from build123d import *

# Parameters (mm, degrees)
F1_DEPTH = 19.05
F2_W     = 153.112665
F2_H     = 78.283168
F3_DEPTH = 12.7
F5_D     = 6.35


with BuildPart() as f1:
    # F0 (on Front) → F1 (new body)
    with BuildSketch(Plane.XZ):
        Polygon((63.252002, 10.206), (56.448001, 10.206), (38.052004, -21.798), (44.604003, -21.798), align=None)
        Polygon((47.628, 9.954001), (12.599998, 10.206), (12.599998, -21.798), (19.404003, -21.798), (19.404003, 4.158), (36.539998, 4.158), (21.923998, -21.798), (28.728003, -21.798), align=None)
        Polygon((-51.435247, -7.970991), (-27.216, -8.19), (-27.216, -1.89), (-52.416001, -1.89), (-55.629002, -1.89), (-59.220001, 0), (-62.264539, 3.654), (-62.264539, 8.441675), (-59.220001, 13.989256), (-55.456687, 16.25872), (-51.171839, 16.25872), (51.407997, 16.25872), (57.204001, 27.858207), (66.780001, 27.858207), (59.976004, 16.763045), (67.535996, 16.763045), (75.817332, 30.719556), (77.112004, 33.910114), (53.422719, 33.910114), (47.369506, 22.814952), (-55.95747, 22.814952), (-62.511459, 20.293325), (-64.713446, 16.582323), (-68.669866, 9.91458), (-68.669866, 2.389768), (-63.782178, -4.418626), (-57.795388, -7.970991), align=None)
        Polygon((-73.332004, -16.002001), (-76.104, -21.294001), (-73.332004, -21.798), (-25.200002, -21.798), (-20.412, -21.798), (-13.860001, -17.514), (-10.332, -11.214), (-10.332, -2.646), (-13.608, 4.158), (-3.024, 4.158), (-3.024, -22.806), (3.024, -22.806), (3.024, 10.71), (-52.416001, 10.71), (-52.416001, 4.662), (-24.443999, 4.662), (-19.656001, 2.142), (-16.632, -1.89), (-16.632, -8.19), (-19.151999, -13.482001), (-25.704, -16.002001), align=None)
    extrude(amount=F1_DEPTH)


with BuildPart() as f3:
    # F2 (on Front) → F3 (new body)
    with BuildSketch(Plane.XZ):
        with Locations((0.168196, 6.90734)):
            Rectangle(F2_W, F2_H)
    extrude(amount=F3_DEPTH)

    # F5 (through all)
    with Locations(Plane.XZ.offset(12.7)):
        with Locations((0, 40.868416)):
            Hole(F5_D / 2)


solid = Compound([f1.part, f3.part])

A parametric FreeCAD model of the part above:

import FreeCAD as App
import Part
import Sketcher

V = App.Vector
Q = App.Units.Quantity


def add_polygon(sketch, points):
    """Adds a closed chain of lines whose ends are joined by coincident constraints."""
    first, n = sketch.GeometryCount, len(points)
    for a, b in zip(points, points[1:] + points[:1]):
        sketch.addGeometry(Part.LineSegment(App.Vector(*a, 0), App.Vector(*b, 0)), False)
    for i in range(n):
        sketch.addConstraint(Sketcher.Constraint("Coincident", first + i, 2, first + (i + 1) % n, 1))

doc = App.newDocument("Part")
params = doc.addObject("Spreadsheet::Sheet", "Params")
for row, (alias, value) in enumerate([
    ("sketch1_height", "1.26 in"),
    ("pad1_length", "0.75 in"),
    ("pad2_length", "0.5 in"),
    ("sketch3_diameter", "0.25 in"),
    ("hole_diameter", "0.25 in"),
], start=1):
    params.set(f"A{row}", alias)
    params.set(f"B{row}", "=" + value)
    params.setAlias(f"B{row}", alias)

body = doc.addObject("PartDesign::Body", "Body")
body.AllowCompound = True

sketch1 = body.newObject("Sketcher::SketchObject", "Sketch")
sketch1.AttachmentSupport = (doc.getObject("XZ_Plane"), [""])
sketch1.MapMode = "FlatFace"
add_polygon(sketch1, [(63.252002, 10.206), (56.448001, 10.206), (38.052004, -21.798), (44.604003, -21.798)])
add_polygon(sketch1, [(47.628, 9.954001), (12.599998, 10.206), (12.599998, -21.798), (19.404003, -21.798), (19.404003, 4.158), (36.539998, 4.158), (21.923998, -21.798), (28.728003, -21.798)])
add_polygon(sketch1, [(-51.435247, -7.970991), (-27.216, -8.19), (-27.216, -1.89), (-55.629002, -1.89), (-59.220001, 0), (-62.264539, 3.654), (-62.264539, 8.441675), (-59.220001, 13.989256), (-55.456687, 16.25872), (51.407997, 16.25872), (57.204001, 27.858207), (66.780001, 27.858207), (59.976004, 16.763045), (67.535996, 16.763045), (75.817332, 30.719556), (77.112004, 33.910114), (53.422719, 33.910114), (47.369506, 22.814952), (-55.95747, 22.814952), (-62.511459, 20.293325), (-64.713446, 16.582323), (-68.669866, 9.91458), (-68.669866, 2.389768), (-63.782178, -4.418626), (-57.795388, -7.970991)])
add_polygon(sketch1, [(-73.332004, -16.002001), (-76.104, -21.294001), (-73.332004, -21.798), (-20.412, -21.798), (-13.860001, -17.514), (-10.332, -11.214), (-10.332, -2.646), (-13.608, 4.158), (-3.024, 4.158), (-3.024, -22.806), (3.024, -22.806), (3.024, 10.71), (-52.416001, 10.71), (-52.416001, 4.662), (-24.443999, 4.662), (-19.656001, 2.142), (-16.632, -1.89), (-16.632, -8.19), (-19.151999, -13.482001), (-25.704, -16.002001)])
sketch1.addConstraint([
    Sketcher.Constraint("Horizontal", 0),
    Sketcher.Constraint("Horizontal", 2),
    Sketcher.Constraint("Vertical", 5),
    Sketcher.Constraint("Horizontal", 6),
    Sketcher.Constraint("Vertical", 7),
    Sketcher.Constraint("Horizontal", 8),
    Sketcher.Constraint("Horizontal", 10),
    Sketcher.Constraint("Vertical", 13),
    Sketcher.Constraint("Horizontal", 14),
    Sketcher.Constraint("Vertical", 17),
    Sketcher.Constraint("Horizontal", 20),
    Sketcher.Constraint("Horizontal", 22),
    Sketcher.Constraint("Horizontal", 24),
    Sketcher.Constraint("Horizontal", 27),
    Sketcher.Constraint("Horizontal", 29),
    Sketcher.Constraint("Vertical", 33),
    Sketcher.Constraint("Horizontal", 36),
    Sketcher.Constraint("Horizontal", 39),
    Sketcher.Constraint("Vertical", 42),
    Sketcher.Constraint("Horizontal", 44),
    Sketcher.Constraint("Vertical", 45),
    Sketcher.Constraint("Horizontal", 46),
    Sketcher.Constraint("Vertical", 47),
    Sketcher.Constraint("Horizontal", 48),
    Sketcher.Constraint("Vertical", 49),
    Sketcher.Constraint("Horizontal", 50),
    Sketcher.Constraint("Vertical", 53),
    Sketcher.Constraint("Horizontal", 56),
    Sketcher.Constraint("PointOnObject", 15, 2, -1),
    Sketcher.Constraint("Parallel", 25, 31),
    Sketcher.Constraint("Parallel", 31, 32),
    Sketcher.Constraint("Perpendicular", 32, 35),
    Sketcher.Constraint("Parallel", 15, 51),
    Sketcher.Constraint("Horizontal", 3, 2, 4, 2),
    Sketcher.Constraint("Horizontal", 2, 2, 5, 2),
    Sketcher.Constraint("Horizontal", 6, 2, 9, 2),
    Sketcher.Constraint("Horizontal", 10, 2, 38, 2),
    Sketcher.Constraint("Horizontal", 8, 2, 43, 2),
    Sketcher.Constraint("Horizontal", 14, 2, 52, 2),
    Sketcher.Constraint("Horizontal", 12, 2, 53, 2),
    Sketcher.Constraint("Vertical", 15, 2, 18, 2),
    Sketcher.Constraint("Vertical", 38, 2, 56, 2),
    Sketcher.Constraint("Equal", 6, 10),
    Sketcher.Constraint("Equal", 46, 49),
    Sketcher.Constraint("DistanceY", 5, 2, 5, 1, Q("1.26 in")),
    Sketcher.Constraint("DistanceY", 55, 2, -1, 1, Q("0.63 in")),
    Sketcher.Constraint("DistanceX", 4, 2, 2, 2, Q("1.2600002 in")),
    Sketcher.Constraint("DistanceX", 15, 2, 13, 2, Q("1.26 in")),
    Sketcher.Constraint("DistanceX", 0, 2, 0, 1, 6.804001),
    Sketcher.Constraint("DistanceX", 2, 1, 2, 2, 6.551999),
    Sketcher.Constraint("DistanceX", 14, 2, 14, 1, 28.413002),
    Sketcher.Constraint("DistanceX", 22, 1, 22, 2, 9.576),
    Sketcher.Constraint("DistanceX", 44, 1, 44, 2, 10.584),
    Sketcher.Constraint("DistanceX", 46, 1, 46, 2, 6.048),
    Sketcher.Constraint("DistanceX", 48, 2, 48, 1, 55.440001),
    Sketcher.Constraint("DistanceX", 50, 1, 50, 2, 27.972002),
    Sketcher.Constraint("DistanceY", 7, 1, 7, 2, 25.956),
    Sketcher.Constraint("DistanceY", 13, 1, 13, 2, 6.3),
    Sketcher.Constraint("DistanceY", 42, 1, 42, 2, 8.568),
    Sketcher.Constraint("DistanceY", 45, 2, 45, 1, 26.964),
    Sketcher.Constraint("DistanceY", 47, 1, 47, 2, 33.516),
    Sketcher.Constraint("DistanceY", 16, 2, 18, 2, Q("0.4068998 in")),
    Sketcher.Constraint("Distance", 15, 4.058001),
    Sketcher.Constraint("Distance", 18, 6.328101),
    Sketcher.Constraint("Distance", 52, 5.040001),
    Sketcher.Constraint("DistanceX", 24, 1, 24, 2, 7.559992),
    Sketcher.Constraint("DistanceX", 36, 1, 36, 2, 6.360141),
    Sketcher.Constraint("DistanceX", -1, 1, 0, 2, 56.448001),
    Sketcher.Constraint("DistanceY", -1, 1, 0, 2, 10.206),
    Sketcher.Constraint("DistanceX", -1, 1, 9, 2, 21.923998),
    Sketcher.Constraint("DistanceX", -1, 1, 11, 2, 47.628),
    Sketcher.Constraint("DistanceY", -1, 1, 11, 2, 9.954001),
    Sketcher.Constraint("DistanceX", 12, 2, -1, 1, 27.216),
    Sketcher.Constraint("DistanceY", -1, 1, 16, 2, 3.654),
    Sketcher.Constraint("DistanceX", -1, 1, 21, 2, 57.204001),
    Sketcher.Constraint("DistanceX", 37, 2, -1, 1, 76.104),
    Sketcher.Constraint("DistanceY", 37, 2, -1, 1, 21.294001),
    Sketcher.Constraint("DistanceX", 39, 2, -1, 1, 20.412),
    Sketcher.Constraint("DistanceX", 40, 2, -1, 1, 13.860001),
    Sketcher.Constraint("DistanceY", 40, 2, -1, 1, 17.514),
    Sketcher.Constraint("DistanceX", 41, 2, -1, 1, 10.332),
    Sketcher.Constraint("DistanceY", 41, 2, -1, 1, 11.214),
    Sketcher.Constraint("DistanceX", 43, 2, -1, 1, 13.608),
    Sketcher.Constraint("DistanceX", 51, 2, -1, 1, 19.656001),
    Sketcher.Constraint("DistanceX", 54, 2, -1, 1, 19.151999),
    Sketcher.Constraint("DistanceY", 54, 2, -1, 1, 13.482001),
    Sketcher.Constraint("DistanceX", 55, 2, -1, 1, 25.704),
    Sketcher.Constraint("DistanceX", 2, 2, 3, 2, 18.647999),
    Sketcher.Constraint("DistanceX", 6, 2, 1, 2, 18.648001),
    Sketcher.Constraint("DistanceX", 4, 2, 8, 2, 23.94),
    Sketcher.Constraint("DistanceX", 8, 2, 20, 2, 14.867999),
    Sketcher.Constraint("DistanceX", 23, 2, 26, 2, 17.136),
    Sketcher.Constraint("DistanceX", 28, 2, 23, 2, 12.606498),
    Sketcher.Constraint("DistanceY", 34, 2, 17, 2, 12.860301),
    Sketcher.Constraint("Distance", 21, 12.966949),
    Sketcher.Constraint("Distance", 23, 13.01526),
    Sketcher.Constraint("Distance", 26, 3.44323),
    Sketcher.Constraint("Distance", 30, 7.022348),
    Sketcher.Constraint("Distance", 35, 6.96139),
    Sketcher.Constraint("Distance", 38, 2.817442),
    Sketcher.Constraint("DistanceX", 20, 1, 20, 2, 106.864684),
    Sketcher.Constraint("DistanceX", 27, 2, 27, 1, 23.689285),
    Sketcher.Constraint("DistanceX", 29, 2, 29, 1, 103.326976),
    Sketcher.Constraint("DistanceY", 17, 1, 17, 2, 4.787675),
    Sketcher.Constraint("DistanceY", 33, 2, 33, 1, 7.524812),
    Sketcher.Constraint("DistanceY", -1, 1, 19, 2, 16.25872),
    Sketcher.Constraint("DistanceX", -1, 1, 25, 2, 75.817332),
    Sketcher.Constraint("DistanceX", -1, 1, 27, 2, 53.422719),
    Sketcher.Constraint("DistanceX", 30, 2, -1, 1, 62.511459),
    Sketcher.Constraint("DistanceY", -1, 1, 32, 2, 9.91458),
    Sketcher.Constraint("DistanceX", 34, 2, -1, 1, 63.782178),
    Sketcher.Constraint("DistanceX", 35, 2, -1, 1, 57.795388),
    Sketcher.Constraint("DistanceY", 28, 2, 27, 2, 11.095162),
    Sketcher.Constraint("DistanceX", 31, 2, 19, 2, 9.256759),
])
sketch1.setExpression("Constraints[101]", "Params.sketch1_height")
pad1 = body.newObject("PartDesign::Pad", "Pad")
pad1.Profile = sketch1
pad1.setExpression("Length", "Params.pad1_length")
body2 = doc.addObject("PartDesign::Body", "Body001")

sketch2 = body2.newObject("Sketcher::SketchObject", "Sketch001")
sketch2.AttachmentSupport = (doc.getObject("XZ_Plane001"), [""])
sketch2.MapMode = "FlatFace"
add_polygon(sketch2, [(-76.388137, 46.048924), (-76.388137, -32.234244), (76.724529, -32.234244), (76.724529, 46.048924)])
sketch2.addConstraint([
    Sketcher.Constraint("Vertical", 0),
    Sketcher.Constraint("Horizontal", 1),
    Sketcher.Constraint("Vertical", 2),
    Sketcher.Constraint("Horizontal", 3),
    Sketcher.Constraint("DistanceX", 1, 1, 1, 2, 153.112665),
    Sketcher.Constraint("DistanceY", 0, 2, 0, 1, 78.283168),
    Sketcher.Constraint("DistanceX", -1, 1, 1, 2, 76.724529),
    Sketcher.Constraint("DistanceY", 0, 2, -1, 1, 32.234244),
])
pad2 = body2.newObject("PartDesign::Pad", "Pad001")
pad2.Profile = sketch2
pad2.setExpression("Length", "Params.pad2_length")

sketch3 = body2.newObject("Sketcher::SketchObject", "Sketch002")
sketch3.AttachmentSupport = (doc.getObject("XZ_Plane001"), [""])
sketch3.MapMode = "FlatFace"
sketch3.AttachmentOffset = App.Placement(V(0, 0, 0.5 * 25.4), App.Rotation())
sketch3.addGeometry(Part.Circle(V(0, 40.868416, 0), V(0, 0, 1), 3.175), False)
sketch3.addConstraint([
    Sketcher.Constraint("PointOnObject", 0, 3, -2),
    Sketcher.Constraint("Diameter", 0, Q("0.25 in")),
    Sketcher.Constraint("DistanceY", -1, 1, 0, 3, 40.868416),
])
sketch3.setExpression("Constraints[1]", "Params.sketch3_diameter")
doc.recompute()
hole = body2.newObject("PartDesign::Hole", "Hole")
hole.Profile = sketch3
hole.ThreadType = "None"
hole.setExpression("Diameter", "Params.hole_diameter")
hole.DepthType = "ThroughAll"

doc.recompute()
